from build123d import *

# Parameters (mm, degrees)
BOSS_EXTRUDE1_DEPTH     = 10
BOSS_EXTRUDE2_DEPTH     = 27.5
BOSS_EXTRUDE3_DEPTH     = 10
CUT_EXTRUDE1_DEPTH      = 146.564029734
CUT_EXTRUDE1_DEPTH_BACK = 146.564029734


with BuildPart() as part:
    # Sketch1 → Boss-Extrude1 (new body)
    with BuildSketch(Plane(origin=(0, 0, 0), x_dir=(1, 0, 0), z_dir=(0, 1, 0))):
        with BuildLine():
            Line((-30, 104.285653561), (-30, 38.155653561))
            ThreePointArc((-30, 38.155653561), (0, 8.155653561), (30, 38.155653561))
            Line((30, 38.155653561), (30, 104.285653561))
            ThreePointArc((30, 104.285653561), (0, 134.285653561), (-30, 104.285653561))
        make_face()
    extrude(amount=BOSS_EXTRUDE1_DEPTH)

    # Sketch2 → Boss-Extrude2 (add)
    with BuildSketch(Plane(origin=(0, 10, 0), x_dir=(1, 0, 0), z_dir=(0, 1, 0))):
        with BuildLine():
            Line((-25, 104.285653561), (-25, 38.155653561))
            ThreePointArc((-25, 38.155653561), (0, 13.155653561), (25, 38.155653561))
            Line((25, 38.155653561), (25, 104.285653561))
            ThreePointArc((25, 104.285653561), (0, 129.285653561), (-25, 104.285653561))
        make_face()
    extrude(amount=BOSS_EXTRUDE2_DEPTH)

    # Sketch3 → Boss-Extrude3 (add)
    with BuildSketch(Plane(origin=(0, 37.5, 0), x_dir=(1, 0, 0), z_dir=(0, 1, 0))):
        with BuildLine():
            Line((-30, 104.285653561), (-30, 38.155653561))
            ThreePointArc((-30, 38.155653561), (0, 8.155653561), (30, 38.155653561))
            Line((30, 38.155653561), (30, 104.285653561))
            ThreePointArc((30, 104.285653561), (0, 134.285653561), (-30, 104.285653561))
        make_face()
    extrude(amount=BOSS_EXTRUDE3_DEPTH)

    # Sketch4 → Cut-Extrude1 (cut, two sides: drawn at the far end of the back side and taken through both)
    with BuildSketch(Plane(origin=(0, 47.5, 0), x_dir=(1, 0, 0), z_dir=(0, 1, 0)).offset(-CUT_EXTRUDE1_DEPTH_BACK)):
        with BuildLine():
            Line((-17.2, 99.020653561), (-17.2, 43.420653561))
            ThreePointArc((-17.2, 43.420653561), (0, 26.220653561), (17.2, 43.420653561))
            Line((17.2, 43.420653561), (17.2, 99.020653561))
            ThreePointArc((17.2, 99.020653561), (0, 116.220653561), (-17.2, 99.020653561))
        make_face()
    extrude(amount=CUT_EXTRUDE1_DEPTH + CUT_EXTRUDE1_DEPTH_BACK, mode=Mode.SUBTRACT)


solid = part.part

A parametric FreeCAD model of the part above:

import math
import FreeCAD as App
import Part
import Sketcher

V = App.Vector

doc = App.newDocument("Part")
body = doc.addObject("PartDesign::Body", "Body")

# Sketch on XZ plane
sketch1 = body.newObject("Sketcher::SketchObject", "Sketch")
sketch1.AttachmentSupport = (doc.getObject("XZ_Plane"), [""])
sketch1.MapMode = "FlatFace"
sketch1.addGeometry([
    Part.LineSegment(V(-30, -104, 0), V(-30, -38, 0)),
    Part.ArcOfCircle(Part.Circle(V(0, -38, 0), V(0, 0, 1), 30), math.radians(0), math.radians(180)),
    Part.LineSegment(V(30, -38, 0), V(30, -104, 0)),
    Part.ArcOfCircle(Part.Circle(V(0, -104, 0), V(0, 0, 1), 30), math.radians(180), math.radians(360)),
], False)
sketch1.addConstraint([
    Sketcher.Constraint("Tangent", 0, 2, 1, 2),
    Sketcher.Constraint("Tangent", 1, 1, 2, 1),
    Sketcher.Constraint("Tangent", 2, 2, 3, 2),
    Sketcher.Constraint("Tangent", 3, 1, 0, 1),
    Sketcher.Constraint("Vertical", 0),
    Sketcher.Constraint("Vertical", 2),
    Sketcher.Constraint("PointOnObject", 1, 3, -2),
    Sketcher.Constraint("Radius", 1, 30.0),
    Sketcher.Constraint("DistanceY", 0, 1, 0, 2, 66.13),
    Sketcher.Constraint("DistanceY", 1, 3, -1, 1, 38.155654),
])
pad1 = body.newObject("PartDesign::Pad", "Pad")
pad1.Profile = sketch1
pad1.Length = 10
pad1.Reversed = True

# Sketch on XZ plane
sketch2 = body.newObject("Sketcher::SketchObject", "Sketch001")
sketch2.AttachmentSupport = (doc.getObject("XZ_Plane"), [""])
sketch2.MapMode = "FlatFace"
sketch2.AttachmentOffset = App.Placement(V(0, 0, -10), App.Rotation())
sketch2.addGeometry([
    Part.LineSegment(V(-25, -104, 0), V(-25, -38, 0)),
    Part.ArcOfCircle(Part.Circle(V(0, -38, 0), V(0, 0, 1), 25), math.radians(0), math.radians(180)),
    Part.LineSegment(V(25, -38, 0), V(25, -104, 0)),
    Part.ArcOfCircle(Part.Circle(V(0, -104, 0), V(0, 0, 1), 25), math.radians(180), math.radians(360)),
], False)
sketch2.addConstraint([
    Sketcher.Constraint("Tangent", 0, 2, 1, 2),
    Sketcher.Constraint("Tangent", 1, 1, 2, 1),
    Sketcher.Constraint("Tangent", 2, 2, 3, 2),
    Sketcher.Constraint("Tangent", 3, 1, 0, 1),
    Sketcher.Constraint("Vertical", 0),
    Sketcher.Constraint("Vertical", 2),
    Sketcher.Constraint("PointOnObject", 1, 3, -2),
    Sketcher.Constraint("Radius", 1, 25.0),
    Sketcher.Constraint("DistanceY", 0, 1, 0, 2, 66.13),
    Sketcher.Constraint("DistanceY", 1, 3, -1, 1, 38.155654),
])
pad2 = body.newObject("PartDesign::Pad", "Pad001")
pad2.Profile = sketch2
pad2.Length = 27.5
pad2.Reversed = True

# Sketch on XZ plane
sketch3 = body.newObject("Sketcher::SketchObject", "Sketch002")
sketch3.AttachmentSupport = (doc.getObject("XZ_Plane"), [""])
sketch3.MapMode = "FlatFace"
sketch3.AttachmentOffset = App.Placement(V(0, 0, -37.5), App.Rotation())
sketch3.addGeometry([
    Part.LineSegment(V(-30, -104, 0), V(-30, -38, 0)),
    Part.ArcOfCircle(Part.Circle(V(0, -38, 0), V(0, 0, 1), 30), math.radians(0), math.radians(180)),
    Part.LineSegment(V(30, -38, 0), V(30, -104, 0)),
    Part.ArcOfCircle(Part.Circle(V(0, -104, 0), V(0, 0, 1), 30), math.radians(180), math.radians(360)),
], False)
sketch3.addConstraint([
    Sketcher.Constraint("Tangent", 0, 2, 1, 2),
    Sketcher.Constraint("Tangent", 1, 1, 2, 1),
    Sketcher.Constraint("Tangent", 2, 2, 3, 2),
    Sketcher.Constraint("Tangent", 3, 1, 0, 1),
    Sketcher.Constraint("Vertical", 0),
    Sketcher.Constraint("Vertical", 2),
    Sketcher.Constraint("PointOnObject", 1, 3, -2),
    Sketcher.Constraint("Radius", 1, 30.0),
    Sketcher.Constraint("DistanceY", 0, 1, 0, 2, 66.13),
    Sketcher.Constraint("DistanceY", 1, 3, -1, 1, 38.155654),
])
pad3 = body.newObject("PartDesign::Pad", "Pad002")
pad3.Profile = sketch3
pad3.Length = 10
pad3.Reversed = True

# Sketch on XZ plane
sketch4 = body.newObject("Sketcher::SketchObject", "Sketch003")
sketch4.AttachmentSupport = (doc.getObject("XZ_Plane"), [""])
sketch4.MapMode = "FlatFace"
sketch4.AttachmentOffset = App.Placement(V(0, 0, -47.5), App.Rotation())
sketch4.addGeometry([
    Part.LineSegment(V(-17, -99, 0), V(-17, -43, 0)),
    Part.ArcOfCircle(Part.Circle(V(0, -43, 0), V(0, 0, 1), 17), math.radians(0), math.radians(180)),
    Part.LineSegment(V(17, -43, 0), V(17, -99, 0)),
    Part.ArcOfCircle(Part.Circle(V(0, -99, 0), V(0, 0, 1), 17), math.radians(180), math.radians(360)),
], False)
sketch4.addConstraint([
    Sketcher.Constraint("Tangent", 0, 2, 1, 2),
    Sketcher.Constraint("Tangent", 1, 1, 2, 1),
    Sketcher.Constraint("Tangent", 2, 2, 3, 2),
    Sketcher.Constraint("Tangent", 3, 1, 0, 1),
    Sketcher.Constraint("Vertical", 0),
    Sketcher.Constraint("Vertical", 2),
    Sketcher.Constraint("PointOnObject", 1, 3, -2),
    Sketcher.Constraint("Radius", 1, 17.2),
    Sketcher.Constraint("DistanceY", 0, 1, 0, 2, 55.6),
    Sketcher.Constraint("DistanceY", 1, 3, -1, 1, 43.420654),
])
pocket1 = body.newObject("PartDesign::Pocket", "Pocket")
pocket1.Profile = sketch4
pocket1.Type = "ThroughAll"
pocket1.Midplane = True

doc.recompute()
